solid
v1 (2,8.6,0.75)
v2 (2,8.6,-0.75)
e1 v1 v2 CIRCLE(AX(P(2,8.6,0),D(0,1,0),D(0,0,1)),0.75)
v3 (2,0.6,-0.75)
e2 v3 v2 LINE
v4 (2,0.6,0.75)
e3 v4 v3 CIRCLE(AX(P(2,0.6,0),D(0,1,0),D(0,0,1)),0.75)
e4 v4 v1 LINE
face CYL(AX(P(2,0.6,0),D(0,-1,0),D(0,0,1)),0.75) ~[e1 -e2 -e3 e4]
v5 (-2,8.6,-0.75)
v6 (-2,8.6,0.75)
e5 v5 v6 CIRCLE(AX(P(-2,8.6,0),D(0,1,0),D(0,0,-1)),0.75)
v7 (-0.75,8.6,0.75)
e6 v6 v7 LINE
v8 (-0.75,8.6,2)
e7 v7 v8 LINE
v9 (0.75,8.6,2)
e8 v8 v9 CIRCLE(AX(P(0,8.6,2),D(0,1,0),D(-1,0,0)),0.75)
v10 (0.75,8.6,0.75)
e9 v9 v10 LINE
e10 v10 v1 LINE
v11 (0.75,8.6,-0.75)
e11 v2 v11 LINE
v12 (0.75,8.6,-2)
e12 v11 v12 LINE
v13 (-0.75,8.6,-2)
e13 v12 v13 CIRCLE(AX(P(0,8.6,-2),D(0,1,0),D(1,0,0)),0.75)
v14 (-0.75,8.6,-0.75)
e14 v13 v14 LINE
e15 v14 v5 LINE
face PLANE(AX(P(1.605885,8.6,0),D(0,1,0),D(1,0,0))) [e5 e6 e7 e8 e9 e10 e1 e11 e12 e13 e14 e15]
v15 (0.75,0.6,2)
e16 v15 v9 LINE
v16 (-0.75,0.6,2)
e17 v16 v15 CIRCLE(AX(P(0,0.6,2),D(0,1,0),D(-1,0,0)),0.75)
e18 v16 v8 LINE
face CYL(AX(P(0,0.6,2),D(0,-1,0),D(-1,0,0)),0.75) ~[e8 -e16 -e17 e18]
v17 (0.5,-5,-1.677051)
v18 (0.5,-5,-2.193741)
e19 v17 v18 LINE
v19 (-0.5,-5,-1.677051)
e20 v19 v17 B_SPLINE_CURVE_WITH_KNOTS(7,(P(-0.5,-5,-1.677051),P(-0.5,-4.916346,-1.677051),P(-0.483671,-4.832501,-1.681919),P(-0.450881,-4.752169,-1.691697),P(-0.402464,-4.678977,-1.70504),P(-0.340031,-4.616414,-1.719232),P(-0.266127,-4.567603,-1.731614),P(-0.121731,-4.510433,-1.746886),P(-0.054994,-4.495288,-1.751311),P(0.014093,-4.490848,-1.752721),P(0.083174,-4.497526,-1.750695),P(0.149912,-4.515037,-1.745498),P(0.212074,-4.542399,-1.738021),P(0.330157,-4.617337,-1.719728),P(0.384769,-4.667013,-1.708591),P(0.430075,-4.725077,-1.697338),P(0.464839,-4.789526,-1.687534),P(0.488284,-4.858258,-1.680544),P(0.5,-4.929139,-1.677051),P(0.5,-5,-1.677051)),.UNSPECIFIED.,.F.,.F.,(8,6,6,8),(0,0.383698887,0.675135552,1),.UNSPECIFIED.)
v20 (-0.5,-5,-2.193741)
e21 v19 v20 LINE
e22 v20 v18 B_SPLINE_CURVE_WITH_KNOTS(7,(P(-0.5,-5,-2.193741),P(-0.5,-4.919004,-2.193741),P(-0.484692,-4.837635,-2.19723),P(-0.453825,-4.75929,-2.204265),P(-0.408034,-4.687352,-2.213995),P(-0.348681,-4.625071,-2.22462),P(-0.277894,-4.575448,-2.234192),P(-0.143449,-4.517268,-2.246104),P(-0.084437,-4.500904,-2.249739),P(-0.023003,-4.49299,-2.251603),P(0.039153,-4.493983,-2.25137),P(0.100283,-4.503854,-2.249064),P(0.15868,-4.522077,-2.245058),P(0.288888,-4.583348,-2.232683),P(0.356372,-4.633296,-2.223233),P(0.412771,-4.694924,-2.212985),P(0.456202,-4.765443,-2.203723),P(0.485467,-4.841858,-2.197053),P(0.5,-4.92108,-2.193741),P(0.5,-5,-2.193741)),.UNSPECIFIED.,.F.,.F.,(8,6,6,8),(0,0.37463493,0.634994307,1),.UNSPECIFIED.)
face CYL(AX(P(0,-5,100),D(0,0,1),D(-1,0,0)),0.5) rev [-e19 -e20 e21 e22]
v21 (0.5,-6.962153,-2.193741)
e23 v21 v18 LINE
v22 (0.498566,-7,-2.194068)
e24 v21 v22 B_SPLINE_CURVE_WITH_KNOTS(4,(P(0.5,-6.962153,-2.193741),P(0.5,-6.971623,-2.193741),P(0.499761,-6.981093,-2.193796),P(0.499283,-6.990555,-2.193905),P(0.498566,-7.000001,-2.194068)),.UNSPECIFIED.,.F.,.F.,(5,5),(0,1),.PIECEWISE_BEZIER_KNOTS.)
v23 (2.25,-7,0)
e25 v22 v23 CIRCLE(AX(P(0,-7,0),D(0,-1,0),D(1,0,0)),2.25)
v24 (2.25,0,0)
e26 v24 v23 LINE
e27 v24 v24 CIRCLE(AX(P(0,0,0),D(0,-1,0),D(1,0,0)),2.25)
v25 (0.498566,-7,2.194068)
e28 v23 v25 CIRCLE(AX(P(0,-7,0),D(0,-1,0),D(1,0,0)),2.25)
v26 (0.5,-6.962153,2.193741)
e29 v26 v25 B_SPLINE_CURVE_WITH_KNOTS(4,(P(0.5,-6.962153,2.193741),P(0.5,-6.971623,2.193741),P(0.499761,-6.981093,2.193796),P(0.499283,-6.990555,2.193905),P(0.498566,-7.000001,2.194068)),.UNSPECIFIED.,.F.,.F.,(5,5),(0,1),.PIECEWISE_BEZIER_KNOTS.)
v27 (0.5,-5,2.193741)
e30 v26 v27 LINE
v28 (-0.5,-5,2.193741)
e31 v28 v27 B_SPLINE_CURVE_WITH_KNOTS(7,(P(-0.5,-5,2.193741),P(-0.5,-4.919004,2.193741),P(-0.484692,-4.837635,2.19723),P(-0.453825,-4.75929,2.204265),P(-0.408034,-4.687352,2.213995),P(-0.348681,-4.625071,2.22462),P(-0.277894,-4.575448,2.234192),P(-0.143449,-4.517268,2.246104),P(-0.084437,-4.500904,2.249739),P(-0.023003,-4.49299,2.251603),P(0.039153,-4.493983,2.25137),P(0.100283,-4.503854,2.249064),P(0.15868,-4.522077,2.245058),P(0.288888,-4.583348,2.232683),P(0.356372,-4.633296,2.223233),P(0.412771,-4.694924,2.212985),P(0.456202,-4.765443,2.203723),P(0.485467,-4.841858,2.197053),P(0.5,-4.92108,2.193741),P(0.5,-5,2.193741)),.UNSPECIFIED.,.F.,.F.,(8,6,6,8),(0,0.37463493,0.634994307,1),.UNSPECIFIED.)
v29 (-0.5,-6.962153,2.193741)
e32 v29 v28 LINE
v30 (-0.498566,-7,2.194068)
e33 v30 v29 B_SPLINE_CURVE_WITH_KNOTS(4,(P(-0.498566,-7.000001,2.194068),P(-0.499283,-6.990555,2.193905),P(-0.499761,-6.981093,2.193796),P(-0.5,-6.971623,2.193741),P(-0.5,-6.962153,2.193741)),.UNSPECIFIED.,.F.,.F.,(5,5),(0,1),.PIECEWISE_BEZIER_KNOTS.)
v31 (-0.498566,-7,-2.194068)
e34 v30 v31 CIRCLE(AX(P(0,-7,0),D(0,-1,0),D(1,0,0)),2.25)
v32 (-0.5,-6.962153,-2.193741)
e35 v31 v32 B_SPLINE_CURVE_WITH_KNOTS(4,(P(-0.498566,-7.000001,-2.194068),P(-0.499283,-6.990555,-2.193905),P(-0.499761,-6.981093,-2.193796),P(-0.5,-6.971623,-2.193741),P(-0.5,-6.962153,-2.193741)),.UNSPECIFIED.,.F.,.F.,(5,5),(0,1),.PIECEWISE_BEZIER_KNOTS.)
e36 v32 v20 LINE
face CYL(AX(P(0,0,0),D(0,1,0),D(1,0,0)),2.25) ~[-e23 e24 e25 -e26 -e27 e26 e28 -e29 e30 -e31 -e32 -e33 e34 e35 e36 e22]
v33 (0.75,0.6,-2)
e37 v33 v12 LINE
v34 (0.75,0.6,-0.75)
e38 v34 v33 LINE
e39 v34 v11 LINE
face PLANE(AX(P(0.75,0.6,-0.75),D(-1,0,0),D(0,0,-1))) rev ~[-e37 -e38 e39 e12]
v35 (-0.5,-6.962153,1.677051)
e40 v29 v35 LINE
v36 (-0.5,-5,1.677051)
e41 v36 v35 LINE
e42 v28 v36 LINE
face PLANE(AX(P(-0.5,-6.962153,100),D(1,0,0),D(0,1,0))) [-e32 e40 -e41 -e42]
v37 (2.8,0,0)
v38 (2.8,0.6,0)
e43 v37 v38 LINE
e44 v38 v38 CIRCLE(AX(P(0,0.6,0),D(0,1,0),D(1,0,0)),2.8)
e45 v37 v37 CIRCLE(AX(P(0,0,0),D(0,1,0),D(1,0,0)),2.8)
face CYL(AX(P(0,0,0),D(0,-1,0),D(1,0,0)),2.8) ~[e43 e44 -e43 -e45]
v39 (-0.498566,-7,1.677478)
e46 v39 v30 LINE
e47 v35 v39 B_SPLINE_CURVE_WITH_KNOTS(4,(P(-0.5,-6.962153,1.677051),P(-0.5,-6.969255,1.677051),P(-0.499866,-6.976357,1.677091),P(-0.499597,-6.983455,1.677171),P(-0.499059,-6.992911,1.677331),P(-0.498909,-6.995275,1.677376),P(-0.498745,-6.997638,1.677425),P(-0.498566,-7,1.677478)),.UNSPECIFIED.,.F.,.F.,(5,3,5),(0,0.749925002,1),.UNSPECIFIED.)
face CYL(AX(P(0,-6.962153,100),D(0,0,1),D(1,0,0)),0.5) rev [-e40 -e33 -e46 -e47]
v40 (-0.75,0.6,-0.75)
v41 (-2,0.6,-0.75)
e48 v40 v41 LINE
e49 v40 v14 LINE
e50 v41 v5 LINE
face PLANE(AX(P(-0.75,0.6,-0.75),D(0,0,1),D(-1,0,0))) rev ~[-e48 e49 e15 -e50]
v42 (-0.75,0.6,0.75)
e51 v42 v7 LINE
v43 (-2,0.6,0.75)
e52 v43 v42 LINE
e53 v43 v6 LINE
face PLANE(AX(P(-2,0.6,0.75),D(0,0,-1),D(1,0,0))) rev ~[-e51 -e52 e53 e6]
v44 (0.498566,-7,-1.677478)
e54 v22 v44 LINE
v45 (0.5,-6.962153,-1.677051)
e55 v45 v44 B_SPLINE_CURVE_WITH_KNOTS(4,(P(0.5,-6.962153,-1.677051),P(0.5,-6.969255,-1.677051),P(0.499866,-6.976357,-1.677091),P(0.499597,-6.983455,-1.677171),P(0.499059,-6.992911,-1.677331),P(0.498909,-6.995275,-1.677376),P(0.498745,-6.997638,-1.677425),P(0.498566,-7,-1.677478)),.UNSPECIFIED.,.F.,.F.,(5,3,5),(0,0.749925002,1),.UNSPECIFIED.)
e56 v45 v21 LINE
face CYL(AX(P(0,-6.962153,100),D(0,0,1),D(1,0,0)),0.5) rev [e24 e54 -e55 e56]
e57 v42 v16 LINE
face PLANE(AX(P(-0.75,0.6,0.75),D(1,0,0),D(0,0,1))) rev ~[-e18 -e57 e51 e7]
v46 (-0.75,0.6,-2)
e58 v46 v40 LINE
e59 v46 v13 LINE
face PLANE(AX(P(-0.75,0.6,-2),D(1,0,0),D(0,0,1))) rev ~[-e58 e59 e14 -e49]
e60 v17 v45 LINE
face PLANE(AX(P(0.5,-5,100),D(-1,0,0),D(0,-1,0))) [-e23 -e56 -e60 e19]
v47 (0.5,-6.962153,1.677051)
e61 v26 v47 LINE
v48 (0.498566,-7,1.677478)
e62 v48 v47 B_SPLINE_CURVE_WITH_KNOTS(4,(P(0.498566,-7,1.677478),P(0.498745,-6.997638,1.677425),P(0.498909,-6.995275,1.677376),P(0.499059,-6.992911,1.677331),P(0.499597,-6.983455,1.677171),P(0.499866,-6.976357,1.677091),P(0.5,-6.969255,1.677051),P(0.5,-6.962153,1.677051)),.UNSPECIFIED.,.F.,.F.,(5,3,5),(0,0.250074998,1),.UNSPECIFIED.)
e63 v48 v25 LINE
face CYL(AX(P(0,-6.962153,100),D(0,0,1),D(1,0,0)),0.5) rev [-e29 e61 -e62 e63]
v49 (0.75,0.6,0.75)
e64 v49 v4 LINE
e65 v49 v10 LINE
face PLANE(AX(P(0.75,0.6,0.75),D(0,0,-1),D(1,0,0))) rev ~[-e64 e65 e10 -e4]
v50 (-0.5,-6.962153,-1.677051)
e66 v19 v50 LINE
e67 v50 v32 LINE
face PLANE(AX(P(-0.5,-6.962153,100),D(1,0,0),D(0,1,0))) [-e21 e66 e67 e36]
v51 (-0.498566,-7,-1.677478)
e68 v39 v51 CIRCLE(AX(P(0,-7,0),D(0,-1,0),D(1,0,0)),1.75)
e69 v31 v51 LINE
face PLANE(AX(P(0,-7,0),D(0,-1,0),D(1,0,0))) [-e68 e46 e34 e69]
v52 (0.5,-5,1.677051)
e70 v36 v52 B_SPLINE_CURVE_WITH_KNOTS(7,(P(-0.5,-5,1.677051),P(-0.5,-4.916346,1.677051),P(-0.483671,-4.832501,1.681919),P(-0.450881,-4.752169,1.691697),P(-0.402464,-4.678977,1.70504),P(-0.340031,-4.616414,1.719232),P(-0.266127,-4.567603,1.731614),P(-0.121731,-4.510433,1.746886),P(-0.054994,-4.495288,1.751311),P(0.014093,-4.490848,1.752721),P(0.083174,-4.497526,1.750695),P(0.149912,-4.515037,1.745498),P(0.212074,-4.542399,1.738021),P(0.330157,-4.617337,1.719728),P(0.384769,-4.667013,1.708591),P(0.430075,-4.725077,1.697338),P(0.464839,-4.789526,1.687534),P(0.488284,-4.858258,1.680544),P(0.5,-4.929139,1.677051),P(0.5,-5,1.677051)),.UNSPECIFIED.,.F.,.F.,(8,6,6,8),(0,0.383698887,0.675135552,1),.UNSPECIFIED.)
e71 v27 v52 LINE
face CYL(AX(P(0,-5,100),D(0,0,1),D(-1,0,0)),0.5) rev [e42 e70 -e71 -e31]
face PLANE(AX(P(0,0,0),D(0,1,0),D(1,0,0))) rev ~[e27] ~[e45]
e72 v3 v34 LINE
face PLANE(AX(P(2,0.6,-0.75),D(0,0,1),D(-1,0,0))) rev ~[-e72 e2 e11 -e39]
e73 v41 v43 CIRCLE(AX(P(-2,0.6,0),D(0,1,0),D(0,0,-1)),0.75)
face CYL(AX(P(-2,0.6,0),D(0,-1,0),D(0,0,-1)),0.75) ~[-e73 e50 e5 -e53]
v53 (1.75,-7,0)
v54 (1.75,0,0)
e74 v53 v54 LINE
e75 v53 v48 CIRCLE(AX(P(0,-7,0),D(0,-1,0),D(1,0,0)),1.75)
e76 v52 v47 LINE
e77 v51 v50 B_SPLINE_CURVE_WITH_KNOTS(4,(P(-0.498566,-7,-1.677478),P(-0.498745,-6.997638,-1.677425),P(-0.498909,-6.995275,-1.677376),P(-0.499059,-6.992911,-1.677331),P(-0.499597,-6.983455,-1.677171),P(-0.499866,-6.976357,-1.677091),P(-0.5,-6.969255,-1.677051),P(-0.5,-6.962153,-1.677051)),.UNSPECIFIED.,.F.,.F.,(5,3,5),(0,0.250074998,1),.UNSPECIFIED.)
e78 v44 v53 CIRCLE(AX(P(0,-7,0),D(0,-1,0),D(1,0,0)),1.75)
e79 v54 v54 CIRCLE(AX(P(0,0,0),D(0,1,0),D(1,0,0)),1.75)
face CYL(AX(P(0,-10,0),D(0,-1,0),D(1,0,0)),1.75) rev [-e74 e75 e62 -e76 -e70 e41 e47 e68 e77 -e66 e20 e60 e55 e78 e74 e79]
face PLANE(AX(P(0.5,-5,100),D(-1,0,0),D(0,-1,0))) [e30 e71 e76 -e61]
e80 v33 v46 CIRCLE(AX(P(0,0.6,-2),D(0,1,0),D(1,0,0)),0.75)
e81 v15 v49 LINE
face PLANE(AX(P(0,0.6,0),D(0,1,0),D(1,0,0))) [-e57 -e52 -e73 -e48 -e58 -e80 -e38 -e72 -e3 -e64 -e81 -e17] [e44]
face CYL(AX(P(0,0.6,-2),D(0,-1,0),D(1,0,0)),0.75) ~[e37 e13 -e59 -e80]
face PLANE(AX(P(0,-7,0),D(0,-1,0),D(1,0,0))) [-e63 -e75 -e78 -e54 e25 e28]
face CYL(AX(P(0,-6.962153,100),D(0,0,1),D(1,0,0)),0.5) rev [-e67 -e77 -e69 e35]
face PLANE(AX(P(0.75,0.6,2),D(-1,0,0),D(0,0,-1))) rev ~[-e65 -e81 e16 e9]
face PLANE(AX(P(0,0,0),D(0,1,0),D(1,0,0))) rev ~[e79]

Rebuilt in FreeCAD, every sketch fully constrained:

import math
import FreeCAD as App
import Part
import Sketcher
Q = App.Units.Quantity

doc = App.newDocument("Part")
params = doc.addObject("Spreadsheet::Sheet", "Params")
for row, (alias, value) in enumerate([
    ("sketch1_diameter", "5.6 mm"),
    ("pad1_length", "0.6 mm"),
    ("sketch2_radius", "0.75 mm"),
    ("pad2_length", "8 mm"),
    ("sketch3_diameter", "4.5 mm"),
    ("pad3_length", "7 mm"),
    ("sketch4_radius", "0.5 mm"),
    ("sketch5_diameter", "3.5 mm"),
    ("pocket2_length", "10 mm"),
], start=1):
    params.set(f"A{row}", alias)
    params.set(f"B{row}", "=" + value)
    params.setAlias(f"B{row}", alias)

body = doc.addObject("PartDesign::Body", "Body")

# Sketch on XZ plane
sketch1 = body.newObject("Sketcher::SketchObject", "Sketch")
sketch1.AttachmentSupport = (doc.getObject("XZ_Plane"), [""])
sketch1.MapMode = "FlatFace"
sketch1.addGeometry(Part.Circle(App.Vector(0, 0, 0), App.Vector(0, 0, 1), 2.8), False)
sketch1.addConstraint(Sketcher.Constraint("Coincident", 0, 3, -1, 1))
sketch1.addConstraint(Sketcher.Constraint("Diameter", 0, Q("5.6 mm")))
sketch1.setExpression("Constraints[1]", "Params.sketch1_diameter")
pad1 = body.newObject("PartDesign::Pad", "Pad")
pad1.Profile = sketch1
pad1.setExpression("Length", "Params.pad1_length")
pad1.Reversed = True

# Sketch on XZ plane
sketch2 = body.newObject("Sketcher::SketchObject", "Sketch001")
sketch2.AttachmentSupport = (doc.getObject("XZ_Plane"), [""])
sketch2.MapMode = "FlatFace"
sketch2.AttachmentOffset = App.Placement(App.Vector(0, 0, -0.6), App.Rotation())
sketch2.addGeometry(Part.ArcOfCircle(Part.Circle(App.Vector(2, 0, 0), App.Vector(0, 0, 1), 0.8), math.radians(-90), math.radians(90)), False)
sketch2.addGeometry(Part.LineSegment(App.Vector(2, -0.8, 0), App.Vector(0.8, -0.8, 0)), False)
sketch2.addGeometry(Part.LineSegment(App.Vector(0.8, -0.8, 0), App.Vector(0.8, -2, 0)), False)
sketch2.addGeometry(Part.ArcOfCircle(Part.Circle(App.Vector(0, -2, 0), App.Vector(0, 0, 1), 0.8), math.radians(180), math.radians(360)), False)
sketch2.addGeometry(Part.LineSegment(App.Vector(-0.8, -2, 0), App.Vector(-0.8, -0.8, 0)), False)
sketch2.addGeometry(Part.LineSegment(App.Vector(-0.8, -0.8, 0), App.Vector(-2, -0.8, 0)), False)
sketch2.addGeometry(Part.ArcOfCircle(Part.Circle(App.Vector(-2, 0, 0), App.Vector(0, 0, 1), 0.8), math.radians(90), math.radians(270)), False)
sketch2.addGeometry(Part.LineSegment(App.Vector(-2, 0.8, 0), App.Vector(-0.8, 0.8, 0)), False)
sketch2.addGeometry(Part.LineSegment(App.Vector(-0.8, 0.8, 0), App.Vector(-0.8, 2, 0)), False)
sketch2.addGeometry(Part.ArcOfCircle(Part.Circle(App.Vector(0, 2, 0), App.Vector(0, 0, 1), 0.8), math.radians(0), math.radians(180)), False)
sketch2.addGeometry(Part.LineSegment(App.Vector(0.8, 2, 0), App.Vector(0.8, 0.8, 0)), False)
sketch2.addGeometry(Part.LineSegment(App.Vector(0.8, 0.8, 0), App.Vector(2, 0.8, 0)), False)
sketch2.addConstraint(Sketcher.Constraint("Tangent", 0, 1, 1, 1))
sketch2.addConstraint(Sketcher.Constraint("Coincident", 1, 2, 2, 1))
sketch2.addConstraint(Sketcher.Constraint("Tangent", 2, 2, 3, 2))
sketch2.addConstraint(Sketcher.Constraint("Tangent", 3, 1, 4, 1))
sketch2.addConstraint(Sketcher.Constraint("Coincident", 4, 2, 5, 1))
sketch2.addConstraint(Sketcher.Constraint("Tangent", 5, 2, 6, 2))
sketch2.addConstraint(Sketcher.Constraint("Tangent", 6, 1, 7, 1))
sketch2.addConstraint(Sketcher.Constraint("Coincident", 7, 2, 8, 1))
sketch2.addConstraint(Sketcher.Constraint("Tangent", 8, 2, 9, 2))
sketch2.addConstraint(Sketcher.Constraint("Tangent", 9, 1, 10, 1))
sketch2.addConstraint(Sketcher.Constraint("Coincident", 10, 2, 11, 1))
sketch2.addConstraint(Sketcher.Constraint("Tangent", 11, 2, 0, 2))
sketch2.addConstraint(Sketcher.Constraint("Horizontal", 1))
sketch2.addConstraint(Sketcher.Constraint("Vertical", 2))
sketch2.addConstraint(Sketcher.Constraint("Vertical", 4))
sketch2.addConstraint(Sketcher.Constraint("Horizontal", 5))
sketch2.addConstraint(Sketcher.Constraint("Horizontal", 7))
sketch2.addConstraint(Sketcher.Constraint("Vertical", 8))
sketch2.addConstraint(Sketcher.Constraint("Vertical", 10))
sketch2.addConstraint(Sketcher.Constraint("Horizontal", 11))
sketch2.addConstraint(Sketcher.Constraint("Equal", 0, 3))
sketch2.addConstraint(Sketcher.Constraint("Equal", 3, 6))
sketch2.addConstraint(Sketcher.Constraint("Equal", 6, 9))
sketch2.addConstraint(Sketcher.Constraint("Symmetric", 0, 3, 6, 3, -1, 1))
sketch2.addConstraint(Sketcher.Constraint("Symmetric", 3, 3, 9, 3, -1, 1))
sketch2.addConstraint(Sketcher.Constraint("Symmetric", 1, 2, 4, 2, -2))
sketch2.addConstraint(Sketcher.Constraint("Equal", 11, 2))
sketch2.addConstraint(Sketcher.Constraint("Radius", 0, Q("0.75 mm")))
sketch2.addConstraint(Sketcher.Constraint("DistanceX", -1, 1, 0, 3, Q("2 mm")))
sketch2.setExpression("Constraints[27]", "Params.sketch2_radius")
pad2 = body.newObject("PartDesign::Pad", "Pad001")
pad2.Profile = sketch2
pad2.setExpression("Length", "Params.pad2_length")
pad2.Reversed = True

# Sketch on XZ plane
sketch3 = body.newObject("Sketcher::SketchObject", "Sketch002")
sketch3.AttachmentSupport = (doc.getObject("XZ_Plane"), [""])
sketch3.MapMode = "FlatFace"
sketch3.addGeometry(Part.Circle(App.Vector(0, 0, 0), App.Vector(0, 0, 1), 2.2), False)
sketch3.addConstraint(Sketcher.Constraint("Coincident", 0, 3, -1, 1))
sketch3.addConstraint(Sketcher.Constraint("Diameter", 0, Q("4.5 mm")))
sketch3.setExpression("Constraints[1]", "Params.sketch3_diameter")
pad3 = body.newObject("PartDesign::Pad", "Pad002")
pad3.Profile = sketch3
pad3.setExpression("Length", "Params.pad3_length")

# Sketch on XY plane
sketch4 = body.newObject("Sketcher::SketchObject", "Sketch003")
sketch4.AttachmentSupport = (doc.getObject("XY_Plane"), [""])
sketch4.MapMode = "FlatFace"
sketch4.AttachmentOffset = App.Placement(App.Vector(0, 0, 100), App.Rotation())
sketch4.addGeometry(Part.LineSegment(App.Vector(0.5, -7, 0), App.Vector(0.5, -5, 0)), False)
sketch4.addGeometry(Part.ArcOfCircle(Part.Circle(App.Vector(0, -5, 0), App.Vector(0, 0, 1), 0.5), math.radians(0), math.radians(180)), False)
sketch4.addGeometry(Part.LineSegment(App.Vector(-0.5, -5, 0), App.Vector(-0.5, -7, 0)), False)
sketch4.addGeometry(Part.ArcOfCircle(Part.Circle(App.Vector(0, -7, 0), App.Vector(0, 0, 1), 0.5), math.radians(180), math.radians(360)), False)
sketch4.addConstraint(Sketcher.Constraint("Tangent", 0, 2, 1, 1))
sketch4.addConstraint(Sketcher.Constraint("Tangent", 1, 2, 2, 1))
sketch4.addConstraint(Sketcher.Constraint("Tangent", 2, 2, 3, 1))
sketch4.addConstraint(Sketcher.Constraint("Tangent", 3, 2, 0, 1))
sketch4.addConstraint(Sketcher.Constraint("Vertical", 0))
sketch4.addConstraint(Sketcher.Constraint("Vertical", 2))
sketch4.addConstraint(Sketcher.Constraint("PointOnObject", 1, 3, -2))
sketch4.addConstraint(Sketcher.Constraint("Radius", 1, Q("0.5 mm")))
sketch4.addConstraint(Sketcher.Constraint("DistanceY", 1, 3, -1, 1, Q("5 mm")))
sketch4.addConstraint(Sketcher.Constraint("DistanceY", 0, 1, 0, 2, Q("1.962153 mm")))
sketch4.setExpression("Constraints[7]", "Params.sketch4_radius")
pocket1 = body.newObject("PartDesign::Pocket", "Pocket")
pocket1.Profile = sketch4
pocket1.Type = "ThroughAll"

# Sketch on XZ plane
sketch5 = body.newObject("Sketcher::SketchObject", "Sketch004")
sketch5.AttachmentSupport = (doc.getObject("XZ_Plane"), [""])
sketch5.MapMode = "FlatFace"
sketch5.AttachmentOffset = App.Placement(App.Vector(0, 0, 10), App.Rotation())
sketch5.addGeometry(Part.Circle(App.Vector(0, 0, 0), App.Vector(0, 0, 1), 1.8), False)
sketch5.addConstraint(Sketcher.Constraint("Coincident", 0, 3, -1, 1))
sketch5.addConstraint(Sketcher.Constraint("Diameter", 0, Q("3.5 mm")))
sketch5.setExpression("Constraints[1]", "Params.sketch5_diameter")
pocket2 = body.newObject("PartDesign::Pocket", "Pocket001")
pocket2.Profile = sketch5
pocket2.setExpression("Length", "Params.pocket2_length")

doc.recompute()
